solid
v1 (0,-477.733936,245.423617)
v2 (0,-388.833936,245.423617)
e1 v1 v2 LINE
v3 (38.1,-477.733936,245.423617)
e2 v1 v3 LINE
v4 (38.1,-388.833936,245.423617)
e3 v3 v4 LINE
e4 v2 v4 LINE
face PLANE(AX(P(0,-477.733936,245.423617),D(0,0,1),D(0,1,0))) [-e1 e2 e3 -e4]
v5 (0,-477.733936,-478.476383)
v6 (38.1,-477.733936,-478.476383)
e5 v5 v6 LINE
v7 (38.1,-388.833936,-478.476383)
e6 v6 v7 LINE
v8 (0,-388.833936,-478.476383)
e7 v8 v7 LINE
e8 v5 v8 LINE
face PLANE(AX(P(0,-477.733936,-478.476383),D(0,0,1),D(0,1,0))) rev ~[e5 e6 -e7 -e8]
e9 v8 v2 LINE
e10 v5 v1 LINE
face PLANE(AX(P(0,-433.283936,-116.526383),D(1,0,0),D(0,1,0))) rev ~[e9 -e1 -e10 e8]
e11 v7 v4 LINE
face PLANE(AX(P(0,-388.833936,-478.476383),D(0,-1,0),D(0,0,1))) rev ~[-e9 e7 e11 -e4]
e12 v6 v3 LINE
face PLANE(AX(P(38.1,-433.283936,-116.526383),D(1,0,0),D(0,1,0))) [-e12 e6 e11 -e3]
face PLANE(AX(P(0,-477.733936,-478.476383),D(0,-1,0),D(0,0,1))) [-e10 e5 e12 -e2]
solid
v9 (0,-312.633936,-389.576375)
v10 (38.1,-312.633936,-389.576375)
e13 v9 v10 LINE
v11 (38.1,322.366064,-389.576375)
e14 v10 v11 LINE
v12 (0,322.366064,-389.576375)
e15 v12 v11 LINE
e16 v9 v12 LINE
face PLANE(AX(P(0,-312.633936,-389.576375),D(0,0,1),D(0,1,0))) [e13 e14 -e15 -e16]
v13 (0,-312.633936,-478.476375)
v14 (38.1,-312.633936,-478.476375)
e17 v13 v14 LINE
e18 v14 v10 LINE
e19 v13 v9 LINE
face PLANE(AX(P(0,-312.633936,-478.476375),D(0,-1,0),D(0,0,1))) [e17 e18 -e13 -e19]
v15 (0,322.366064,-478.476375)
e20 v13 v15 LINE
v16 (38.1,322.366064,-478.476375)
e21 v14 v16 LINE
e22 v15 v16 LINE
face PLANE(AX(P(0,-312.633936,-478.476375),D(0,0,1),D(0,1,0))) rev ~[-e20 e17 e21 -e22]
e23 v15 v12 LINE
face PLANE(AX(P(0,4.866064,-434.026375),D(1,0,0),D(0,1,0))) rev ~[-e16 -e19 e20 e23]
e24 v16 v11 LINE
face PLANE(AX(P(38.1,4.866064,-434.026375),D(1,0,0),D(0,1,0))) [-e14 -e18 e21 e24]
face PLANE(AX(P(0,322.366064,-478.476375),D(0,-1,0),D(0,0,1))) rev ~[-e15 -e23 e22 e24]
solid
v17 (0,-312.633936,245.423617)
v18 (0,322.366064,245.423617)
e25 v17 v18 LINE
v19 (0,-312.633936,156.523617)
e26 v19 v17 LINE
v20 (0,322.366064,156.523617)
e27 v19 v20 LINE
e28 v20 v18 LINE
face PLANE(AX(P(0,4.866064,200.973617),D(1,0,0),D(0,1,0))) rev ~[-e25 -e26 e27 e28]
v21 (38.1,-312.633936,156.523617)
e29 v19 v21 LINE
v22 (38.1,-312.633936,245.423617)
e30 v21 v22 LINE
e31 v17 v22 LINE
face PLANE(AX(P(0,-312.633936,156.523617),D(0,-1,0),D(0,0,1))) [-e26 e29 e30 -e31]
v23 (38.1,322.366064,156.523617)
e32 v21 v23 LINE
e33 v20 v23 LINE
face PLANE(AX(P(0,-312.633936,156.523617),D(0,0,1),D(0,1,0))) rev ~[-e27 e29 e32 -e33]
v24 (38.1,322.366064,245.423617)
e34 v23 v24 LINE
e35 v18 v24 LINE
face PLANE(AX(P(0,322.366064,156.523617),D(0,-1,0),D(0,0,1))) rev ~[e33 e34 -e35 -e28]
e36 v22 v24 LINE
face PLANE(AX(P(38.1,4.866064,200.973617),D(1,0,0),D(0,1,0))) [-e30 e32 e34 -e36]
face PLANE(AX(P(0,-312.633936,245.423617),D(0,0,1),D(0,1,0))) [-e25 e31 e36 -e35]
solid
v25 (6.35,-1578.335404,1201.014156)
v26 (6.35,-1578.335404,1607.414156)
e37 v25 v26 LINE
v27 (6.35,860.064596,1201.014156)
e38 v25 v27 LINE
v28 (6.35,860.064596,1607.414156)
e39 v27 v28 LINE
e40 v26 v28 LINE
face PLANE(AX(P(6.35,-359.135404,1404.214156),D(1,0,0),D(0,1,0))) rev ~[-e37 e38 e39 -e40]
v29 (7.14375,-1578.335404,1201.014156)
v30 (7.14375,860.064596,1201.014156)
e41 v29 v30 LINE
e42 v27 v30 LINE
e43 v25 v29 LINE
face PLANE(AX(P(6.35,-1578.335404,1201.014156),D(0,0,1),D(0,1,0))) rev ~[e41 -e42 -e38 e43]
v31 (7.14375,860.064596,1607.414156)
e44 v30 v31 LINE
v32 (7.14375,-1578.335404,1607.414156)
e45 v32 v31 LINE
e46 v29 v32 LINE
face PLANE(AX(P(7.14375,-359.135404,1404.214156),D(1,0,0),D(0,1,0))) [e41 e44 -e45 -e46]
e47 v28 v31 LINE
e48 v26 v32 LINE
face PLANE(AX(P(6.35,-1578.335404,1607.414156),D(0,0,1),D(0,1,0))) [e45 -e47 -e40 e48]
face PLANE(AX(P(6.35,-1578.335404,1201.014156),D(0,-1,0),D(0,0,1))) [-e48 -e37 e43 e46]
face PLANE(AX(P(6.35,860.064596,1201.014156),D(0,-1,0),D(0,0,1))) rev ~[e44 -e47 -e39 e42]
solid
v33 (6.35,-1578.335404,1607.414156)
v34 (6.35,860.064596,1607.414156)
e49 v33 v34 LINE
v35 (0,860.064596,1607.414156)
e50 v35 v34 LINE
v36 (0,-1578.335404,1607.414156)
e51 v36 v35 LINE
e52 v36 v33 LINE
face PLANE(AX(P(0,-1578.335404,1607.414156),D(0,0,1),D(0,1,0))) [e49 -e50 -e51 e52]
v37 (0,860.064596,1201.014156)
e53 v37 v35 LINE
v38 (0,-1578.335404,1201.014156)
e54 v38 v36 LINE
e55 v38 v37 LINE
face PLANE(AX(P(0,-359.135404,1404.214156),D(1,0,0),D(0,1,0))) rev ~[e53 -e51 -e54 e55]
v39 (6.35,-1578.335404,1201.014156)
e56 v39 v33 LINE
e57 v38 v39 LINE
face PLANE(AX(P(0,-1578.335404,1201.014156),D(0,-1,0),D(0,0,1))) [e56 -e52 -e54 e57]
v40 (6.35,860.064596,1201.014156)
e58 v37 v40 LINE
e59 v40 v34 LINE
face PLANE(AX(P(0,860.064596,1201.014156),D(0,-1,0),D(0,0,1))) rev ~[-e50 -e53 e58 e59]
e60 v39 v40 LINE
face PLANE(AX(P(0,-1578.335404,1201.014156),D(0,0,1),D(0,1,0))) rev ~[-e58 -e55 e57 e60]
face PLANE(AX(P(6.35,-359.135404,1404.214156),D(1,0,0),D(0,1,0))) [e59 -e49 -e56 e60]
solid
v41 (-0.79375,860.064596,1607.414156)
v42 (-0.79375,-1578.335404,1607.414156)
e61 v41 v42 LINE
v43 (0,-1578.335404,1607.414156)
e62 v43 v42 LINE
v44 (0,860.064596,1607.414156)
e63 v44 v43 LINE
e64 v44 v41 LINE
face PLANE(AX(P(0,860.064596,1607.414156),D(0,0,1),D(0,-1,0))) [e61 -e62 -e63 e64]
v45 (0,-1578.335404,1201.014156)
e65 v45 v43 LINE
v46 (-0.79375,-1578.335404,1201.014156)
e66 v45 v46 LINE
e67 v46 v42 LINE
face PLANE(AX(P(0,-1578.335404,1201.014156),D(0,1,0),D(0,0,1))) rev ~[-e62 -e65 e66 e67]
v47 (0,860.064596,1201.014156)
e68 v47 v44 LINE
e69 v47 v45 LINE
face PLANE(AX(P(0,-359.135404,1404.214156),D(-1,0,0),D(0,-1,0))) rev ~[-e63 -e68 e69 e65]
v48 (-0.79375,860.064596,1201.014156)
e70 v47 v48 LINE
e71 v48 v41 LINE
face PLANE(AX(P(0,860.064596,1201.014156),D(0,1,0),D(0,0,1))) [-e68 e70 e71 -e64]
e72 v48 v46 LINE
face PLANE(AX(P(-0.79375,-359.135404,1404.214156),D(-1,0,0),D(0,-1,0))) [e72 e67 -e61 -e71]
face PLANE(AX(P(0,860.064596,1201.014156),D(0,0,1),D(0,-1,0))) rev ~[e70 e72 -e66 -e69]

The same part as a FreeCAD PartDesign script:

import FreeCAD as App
import Part
import Sketcher
Q = App.Units.Quantity


def add_polygon(sketch, points):
    """Adds a closed chain of lines whose ends are joined by coincident constraints."""
    first, n = sketch.GeometryCount, len(points)
    for a, b in zip(points, points[1:] + points[:1]):
        sketch.addGeometry(Part.LineSegment(App.Vector(*a, 0), App.Vector(*b, 0)), False)
    for i in range(n):
        sketch.addConstraint(Sketcher.Constraint("Coincident", first + i, 2, first + (i + 1) % n, 1))

doc = App.newDocument("Part")
body = doc.addObject("PartDesign::Body", "Body")
body.AllowCompound = True

sketch1 = body.newObject("Sketcher::SketchObject", "Sketch")
sketch1.AttachmentSupport = (doc.getObject("YZ_Plane"), [""])
sketch1.MapMode = "FlatFace"
add_polygon(sketch1, [(-477.733936, 245.423617), (-477.733936, -478.476383), (-388.833936, -478.476383), (-388.833936, 245.423617)])
add_polygon(sketch1, [(-312.633936, -389.576375), (-312.633936, -478.476375), (322.366064, -478.476375), (322.366064, -389.576375)])
add_polygon(sketch1, [(-312.633936, 245.423617), (-312.633936, 156.523617), (322.366064, 156.523617), (322.366064, 245.423617)])
sketch1.addConstraint(Sketcher.Constraint("Vertical", 0))
sketch1.addConstraint(Sketcher.Constraint("Horizontal", 1))
sketch1.addConstraint(Sketcher.Constraint("Vertical", 2))
sketch1.addConstraint(Sketcher.Constraint("Horizontal", 3))
sketch1.addConstraint(Sketcher.Constraint("Vertical", 4))
sketch1.addConstraint(Sketcher.Constraint("Horizontal", 5))
sketch1.addConstraint(Sketcher.Constraint("Vertical", 6))
sketch1.addConstraint(Sketcher.Constraint("Horizontal", 7))
sketch1.addConstraint(Sketcher.Constraint("Vertical", 8))
sketch1.addConstraint(Sketcher.Constraint("Horizontal", 9))
sketch1.addConstraint(Sketcher.Constraint("Vertical", 10))
sketch1.addConstraint(Sketcher.Constraint("Horizontal", 11))
sketch1.addConstraint(Sketcher.Constraint("Horizontal", 3, 2, 10, 2))
sketch1.addConstraint(Sketcher.Constraint("Vertical", 7, 2, 8, 2))
sketch1.addConstraint(Sketcher.Constraint("Vertical", 6, 2, 9, 2))
sketch1.addConstraint(Sketcher.Constraint("Equal", 3, 4))
sketch1.addConstraint(Sketcher.Constraint("Equal", 6, 8))
sketch1.addConstraint(Sketcher.Constraint("DistanceX", 5, 1, 5, 2, Q("25 in")))
sketch1.addConstraint(Sketcher.Constraint("DistanceX", 1, 1, 1, 2, Q("3.5 in")))
sketch1.addConstraint(Sketcher.Constraint("DistanceY", 0, 2, 0, 1, Q("28.5 in")))
sketch1.addConstraint(Sketcher.Constraint("DistanceX", 1, 2, 4, 2, Q("3 in")))
sketch1.addConstraint(Sketcher.Constraint("DistanceY", 4, 2, 2, 2, Q("723.899992 mm")))
sketch1.addConstraint(Sketcher.Constraint("DistanceX", 0, 2, -1, 1, Q("477.733936 mm")))
sketch1.addConstraint(Sketcher.Constraint("DistanceY", 0, 2, -1, 1, Q("478.476383 mm")))
pad1 = body.newObject("PartDesign::Pad", "Pad")
pad1.Profile = sketch1
pad1.Length = Q("1.5 in")
body2 = doc.addObject("PartDesign::Body", "Body001")

sketch2 = body2.newObject("Sketcher::SketchObject", "Sketch001")
sketch2.AttachmentSupport = (doc.getObject("YZ_Plane001"), [""])
sketch2.MapMode = "FlatFace"
add_polygon(sketch2, [(-1578.335404, 1607.414156), (-1578.335404, 1201.014156), (860.064596, 1201.014156), (860.064596, 1607.414156)])
sketch2.addConstraint(Sketcher.Constraint("Vertical", 0))
sketch2.addConstraint(Sketcher.Constraint("Horizontal", 1))
sketch2.addConstraint(Sketcher.Constraint("Vertical", 2))
sketch2.addConstraint(Sketcher.Constraint("Horizontal", 3))
sketch2.addConstraint(Sketcher.Constraint("DistanceX", 1, 1, 1, 2, Q("96 in")))
sketch2.addConstraint(Sketcher.Constraint("DistanceY", 0, 2, 0, 1, Q("16 in")))
sketch2.addConstraint(Sketcher.Constraint("DistanceX", 0, 2, -1, 1, Q("1578.335404 mm")))
sketch2.addConstraint(Sketcher.Constraint("DistanceY", -1, 1, 0, 2, Q("1201.014156 mm")))
pad2 = body2.newObject("PartDesign::Pad", "Pad001")
pad2.Profile = sketch2
pad2.Length = Q("0.25 in")
body3 = doc.addObject("PartDesign::Body", "Body002")

sketch3 = body3.newObject("Sketcher::SketchObject", "Sketch002")
sketch3.AttachmentSupport = (doc.getObject("YZ_Plane002"), [""])
sketch3.MapMode = "FlatFace"
sketch3.AttachmentOffset = App.Placement(App.Vector(0, 0, 0.25 * 25.4), App.Rotation())
add_polygon(sketch3, [(-1578.335404, 1607.414156), (-1578.335404, 1201.014156), (860.064596, 1201.014156), (860.064596, 1607.414156)])
sketch3.addConstraint(Sketcher.Constraint("Vertical", 0))
sketch3.addConstraint(Sketcher.Constraint("Horizontal", 1))
sketch3.addConstraint(Sketcher.Constraint("Vertical", 2))
sketch3.addConstraint(Sketcher.Constraint("Horizontal", 3))
sketch3.addConstraint(Sketcher.Constraint("DistanceX", 1, 1, 1, 2, Q("96 in")))
sketch3.addConstraint(Sketcher.Constraint("DistanceY", 0, 2, 0, 1, Q("16 in")))
sketch3.addConstraint(Sketcher.Constraint("DistanceX", 0, 2, -1, 1, Q("1578.335404 mm")))
sketch3.addConstraint(Sketcher.Constraint("DistanceY", -1, 1, 0, 2, Q("1201.014156 mm")))
pad3 = body3.newObject("PartDesign::Pad", "Pad002")
pad3.Profile = sketch3
pad3.Length = Q("0.03125 in")
body4 = doc.addObject("PartDesign::Body", "Body003")

sketch4 = body4.newObject("Sketcher::SketchObject", "Sketch003")
sketch4.AttachmentSupport = (doc.getObject("YZ_Plane003"), [""])
sketch4.MapMode = "FlatFace"
add_polygon(sketch4, [(860.064596, 1607.414156), (860.064596, 1201.014156), (-1578.335404, 1201.014156), (-1578.335404, 1607.414156)])
sketch4.addConstraint(Sketcher.Constraint("Vertical", 0))
sketch4.addConstraint(Sketcher.Constraint("Horizontal", 1))
sketch4.addConstraint(Sketcher.Constraint("Vertical", 2))
sketch4.addConstraint(Sketcher.Constraint("Horizontal", 3))
sketch4.addConstraint(Sketcher.Constraint("DistanceX", 1, 2, 1, 1, Q("96 in")))
sketch4.addConstraint(Sketcher.Constraint("DistanceY", 0, 2, 0, 1, Q("16 in")))
sketch4.addConstraint(Sketcher.Constraint("DistanceX", -1, 1, 0, 2, Q("860.064596 mm")))
sketch4.addConstraint(Sketcher.Constraint("DistanceY", -1, 1, 0, 2, Q("1201.014156 mm")))
pad4 = body4.newObject("PartDesign::Pad", "Pad003")
pad4.Profile = sketch4
pad4.Length = Q("0.03125 in")
pad4.Reversed = True

doc.recompute()
